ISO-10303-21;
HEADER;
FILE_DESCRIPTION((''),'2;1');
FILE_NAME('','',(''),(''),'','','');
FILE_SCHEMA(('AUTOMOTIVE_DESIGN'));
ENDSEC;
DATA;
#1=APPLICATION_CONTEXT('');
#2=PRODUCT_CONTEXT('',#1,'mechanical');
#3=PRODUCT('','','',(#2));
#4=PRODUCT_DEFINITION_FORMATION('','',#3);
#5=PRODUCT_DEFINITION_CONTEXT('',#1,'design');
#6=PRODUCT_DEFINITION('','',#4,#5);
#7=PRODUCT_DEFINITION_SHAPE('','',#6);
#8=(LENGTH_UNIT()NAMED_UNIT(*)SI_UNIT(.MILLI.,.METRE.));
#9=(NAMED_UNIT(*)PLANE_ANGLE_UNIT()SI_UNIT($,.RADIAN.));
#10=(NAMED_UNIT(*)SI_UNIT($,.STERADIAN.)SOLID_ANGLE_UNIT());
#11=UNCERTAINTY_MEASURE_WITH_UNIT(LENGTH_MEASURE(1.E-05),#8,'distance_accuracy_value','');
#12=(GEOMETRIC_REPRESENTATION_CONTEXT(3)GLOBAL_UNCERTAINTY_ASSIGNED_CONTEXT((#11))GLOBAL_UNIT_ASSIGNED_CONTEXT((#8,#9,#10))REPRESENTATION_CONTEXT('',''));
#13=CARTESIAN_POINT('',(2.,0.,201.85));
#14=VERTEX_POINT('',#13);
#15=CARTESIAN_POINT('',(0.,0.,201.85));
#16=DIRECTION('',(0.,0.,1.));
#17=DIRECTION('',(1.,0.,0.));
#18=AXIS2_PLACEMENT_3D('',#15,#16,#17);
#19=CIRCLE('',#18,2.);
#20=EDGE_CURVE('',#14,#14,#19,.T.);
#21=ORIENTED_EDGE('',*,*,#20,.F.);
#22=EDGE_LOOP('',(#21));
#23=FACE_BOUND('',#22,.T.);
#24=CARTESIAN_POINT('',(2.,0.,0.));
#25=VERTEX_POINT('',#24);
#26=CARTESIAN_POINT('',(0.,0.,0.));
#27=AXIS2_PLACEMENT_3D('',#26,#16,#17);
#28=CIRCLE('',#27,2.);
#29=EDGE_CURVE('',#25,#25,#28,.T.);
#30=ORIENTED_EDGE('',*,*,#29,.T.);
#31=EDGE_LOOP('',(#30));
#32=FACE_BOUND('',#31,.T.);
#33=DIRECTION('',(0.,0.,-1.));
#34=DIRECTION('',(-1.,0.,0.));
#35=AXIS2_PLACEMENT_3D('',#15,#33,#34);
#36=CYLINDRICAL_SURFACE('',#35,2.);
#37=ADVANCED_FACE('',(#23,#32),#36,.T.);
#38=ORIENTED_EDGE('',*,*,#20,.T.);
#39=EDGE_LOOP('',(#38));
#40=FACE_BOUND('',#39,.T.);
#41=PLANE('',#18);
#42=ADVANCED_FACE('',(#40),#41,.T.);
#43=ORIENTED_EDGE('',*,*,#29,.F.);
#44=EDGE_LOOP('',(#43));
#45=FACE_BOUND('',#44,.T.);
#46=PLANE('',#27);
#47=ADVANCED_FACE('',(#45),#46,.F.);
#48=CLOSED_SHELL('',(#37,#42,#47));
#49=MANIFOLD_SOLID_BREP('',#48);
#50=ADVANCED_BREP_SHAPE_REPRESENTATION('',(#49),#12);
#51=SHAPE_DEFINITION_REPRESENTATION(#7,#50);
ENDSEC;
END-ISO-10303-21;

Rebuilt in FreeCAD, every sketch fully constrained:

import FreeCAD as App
import Part
import Sketcher

doc = App.newDocument("Part")
body = doc.addObject("PartDesign::Body", "Body")

sketch1 = body.newObject("Sketcher::SketchObject", "Sketch")
sketch1.AttachmentSupport = (doc.getObject("XY_Plane"), [""])
sketch1.MapMode = "FlatFace"
sketch1.addGeometry(Part.Circle(App.Vector(0, 0, 0), App.Vector(0, 0, 1), 2), False)
sketch1.addConstraint(Sketcher.Constraint("Coincident", 0, 3, -1, 1))
sketch1.addConstraint(Sketcher.Constraint("Diameter", 0, 4.0))
pad1 = body.newObject("PartDesign::Pad", "Pad")
pad1.Profile = sketch1
pad1.Length = 201.85

doc.recompute()
